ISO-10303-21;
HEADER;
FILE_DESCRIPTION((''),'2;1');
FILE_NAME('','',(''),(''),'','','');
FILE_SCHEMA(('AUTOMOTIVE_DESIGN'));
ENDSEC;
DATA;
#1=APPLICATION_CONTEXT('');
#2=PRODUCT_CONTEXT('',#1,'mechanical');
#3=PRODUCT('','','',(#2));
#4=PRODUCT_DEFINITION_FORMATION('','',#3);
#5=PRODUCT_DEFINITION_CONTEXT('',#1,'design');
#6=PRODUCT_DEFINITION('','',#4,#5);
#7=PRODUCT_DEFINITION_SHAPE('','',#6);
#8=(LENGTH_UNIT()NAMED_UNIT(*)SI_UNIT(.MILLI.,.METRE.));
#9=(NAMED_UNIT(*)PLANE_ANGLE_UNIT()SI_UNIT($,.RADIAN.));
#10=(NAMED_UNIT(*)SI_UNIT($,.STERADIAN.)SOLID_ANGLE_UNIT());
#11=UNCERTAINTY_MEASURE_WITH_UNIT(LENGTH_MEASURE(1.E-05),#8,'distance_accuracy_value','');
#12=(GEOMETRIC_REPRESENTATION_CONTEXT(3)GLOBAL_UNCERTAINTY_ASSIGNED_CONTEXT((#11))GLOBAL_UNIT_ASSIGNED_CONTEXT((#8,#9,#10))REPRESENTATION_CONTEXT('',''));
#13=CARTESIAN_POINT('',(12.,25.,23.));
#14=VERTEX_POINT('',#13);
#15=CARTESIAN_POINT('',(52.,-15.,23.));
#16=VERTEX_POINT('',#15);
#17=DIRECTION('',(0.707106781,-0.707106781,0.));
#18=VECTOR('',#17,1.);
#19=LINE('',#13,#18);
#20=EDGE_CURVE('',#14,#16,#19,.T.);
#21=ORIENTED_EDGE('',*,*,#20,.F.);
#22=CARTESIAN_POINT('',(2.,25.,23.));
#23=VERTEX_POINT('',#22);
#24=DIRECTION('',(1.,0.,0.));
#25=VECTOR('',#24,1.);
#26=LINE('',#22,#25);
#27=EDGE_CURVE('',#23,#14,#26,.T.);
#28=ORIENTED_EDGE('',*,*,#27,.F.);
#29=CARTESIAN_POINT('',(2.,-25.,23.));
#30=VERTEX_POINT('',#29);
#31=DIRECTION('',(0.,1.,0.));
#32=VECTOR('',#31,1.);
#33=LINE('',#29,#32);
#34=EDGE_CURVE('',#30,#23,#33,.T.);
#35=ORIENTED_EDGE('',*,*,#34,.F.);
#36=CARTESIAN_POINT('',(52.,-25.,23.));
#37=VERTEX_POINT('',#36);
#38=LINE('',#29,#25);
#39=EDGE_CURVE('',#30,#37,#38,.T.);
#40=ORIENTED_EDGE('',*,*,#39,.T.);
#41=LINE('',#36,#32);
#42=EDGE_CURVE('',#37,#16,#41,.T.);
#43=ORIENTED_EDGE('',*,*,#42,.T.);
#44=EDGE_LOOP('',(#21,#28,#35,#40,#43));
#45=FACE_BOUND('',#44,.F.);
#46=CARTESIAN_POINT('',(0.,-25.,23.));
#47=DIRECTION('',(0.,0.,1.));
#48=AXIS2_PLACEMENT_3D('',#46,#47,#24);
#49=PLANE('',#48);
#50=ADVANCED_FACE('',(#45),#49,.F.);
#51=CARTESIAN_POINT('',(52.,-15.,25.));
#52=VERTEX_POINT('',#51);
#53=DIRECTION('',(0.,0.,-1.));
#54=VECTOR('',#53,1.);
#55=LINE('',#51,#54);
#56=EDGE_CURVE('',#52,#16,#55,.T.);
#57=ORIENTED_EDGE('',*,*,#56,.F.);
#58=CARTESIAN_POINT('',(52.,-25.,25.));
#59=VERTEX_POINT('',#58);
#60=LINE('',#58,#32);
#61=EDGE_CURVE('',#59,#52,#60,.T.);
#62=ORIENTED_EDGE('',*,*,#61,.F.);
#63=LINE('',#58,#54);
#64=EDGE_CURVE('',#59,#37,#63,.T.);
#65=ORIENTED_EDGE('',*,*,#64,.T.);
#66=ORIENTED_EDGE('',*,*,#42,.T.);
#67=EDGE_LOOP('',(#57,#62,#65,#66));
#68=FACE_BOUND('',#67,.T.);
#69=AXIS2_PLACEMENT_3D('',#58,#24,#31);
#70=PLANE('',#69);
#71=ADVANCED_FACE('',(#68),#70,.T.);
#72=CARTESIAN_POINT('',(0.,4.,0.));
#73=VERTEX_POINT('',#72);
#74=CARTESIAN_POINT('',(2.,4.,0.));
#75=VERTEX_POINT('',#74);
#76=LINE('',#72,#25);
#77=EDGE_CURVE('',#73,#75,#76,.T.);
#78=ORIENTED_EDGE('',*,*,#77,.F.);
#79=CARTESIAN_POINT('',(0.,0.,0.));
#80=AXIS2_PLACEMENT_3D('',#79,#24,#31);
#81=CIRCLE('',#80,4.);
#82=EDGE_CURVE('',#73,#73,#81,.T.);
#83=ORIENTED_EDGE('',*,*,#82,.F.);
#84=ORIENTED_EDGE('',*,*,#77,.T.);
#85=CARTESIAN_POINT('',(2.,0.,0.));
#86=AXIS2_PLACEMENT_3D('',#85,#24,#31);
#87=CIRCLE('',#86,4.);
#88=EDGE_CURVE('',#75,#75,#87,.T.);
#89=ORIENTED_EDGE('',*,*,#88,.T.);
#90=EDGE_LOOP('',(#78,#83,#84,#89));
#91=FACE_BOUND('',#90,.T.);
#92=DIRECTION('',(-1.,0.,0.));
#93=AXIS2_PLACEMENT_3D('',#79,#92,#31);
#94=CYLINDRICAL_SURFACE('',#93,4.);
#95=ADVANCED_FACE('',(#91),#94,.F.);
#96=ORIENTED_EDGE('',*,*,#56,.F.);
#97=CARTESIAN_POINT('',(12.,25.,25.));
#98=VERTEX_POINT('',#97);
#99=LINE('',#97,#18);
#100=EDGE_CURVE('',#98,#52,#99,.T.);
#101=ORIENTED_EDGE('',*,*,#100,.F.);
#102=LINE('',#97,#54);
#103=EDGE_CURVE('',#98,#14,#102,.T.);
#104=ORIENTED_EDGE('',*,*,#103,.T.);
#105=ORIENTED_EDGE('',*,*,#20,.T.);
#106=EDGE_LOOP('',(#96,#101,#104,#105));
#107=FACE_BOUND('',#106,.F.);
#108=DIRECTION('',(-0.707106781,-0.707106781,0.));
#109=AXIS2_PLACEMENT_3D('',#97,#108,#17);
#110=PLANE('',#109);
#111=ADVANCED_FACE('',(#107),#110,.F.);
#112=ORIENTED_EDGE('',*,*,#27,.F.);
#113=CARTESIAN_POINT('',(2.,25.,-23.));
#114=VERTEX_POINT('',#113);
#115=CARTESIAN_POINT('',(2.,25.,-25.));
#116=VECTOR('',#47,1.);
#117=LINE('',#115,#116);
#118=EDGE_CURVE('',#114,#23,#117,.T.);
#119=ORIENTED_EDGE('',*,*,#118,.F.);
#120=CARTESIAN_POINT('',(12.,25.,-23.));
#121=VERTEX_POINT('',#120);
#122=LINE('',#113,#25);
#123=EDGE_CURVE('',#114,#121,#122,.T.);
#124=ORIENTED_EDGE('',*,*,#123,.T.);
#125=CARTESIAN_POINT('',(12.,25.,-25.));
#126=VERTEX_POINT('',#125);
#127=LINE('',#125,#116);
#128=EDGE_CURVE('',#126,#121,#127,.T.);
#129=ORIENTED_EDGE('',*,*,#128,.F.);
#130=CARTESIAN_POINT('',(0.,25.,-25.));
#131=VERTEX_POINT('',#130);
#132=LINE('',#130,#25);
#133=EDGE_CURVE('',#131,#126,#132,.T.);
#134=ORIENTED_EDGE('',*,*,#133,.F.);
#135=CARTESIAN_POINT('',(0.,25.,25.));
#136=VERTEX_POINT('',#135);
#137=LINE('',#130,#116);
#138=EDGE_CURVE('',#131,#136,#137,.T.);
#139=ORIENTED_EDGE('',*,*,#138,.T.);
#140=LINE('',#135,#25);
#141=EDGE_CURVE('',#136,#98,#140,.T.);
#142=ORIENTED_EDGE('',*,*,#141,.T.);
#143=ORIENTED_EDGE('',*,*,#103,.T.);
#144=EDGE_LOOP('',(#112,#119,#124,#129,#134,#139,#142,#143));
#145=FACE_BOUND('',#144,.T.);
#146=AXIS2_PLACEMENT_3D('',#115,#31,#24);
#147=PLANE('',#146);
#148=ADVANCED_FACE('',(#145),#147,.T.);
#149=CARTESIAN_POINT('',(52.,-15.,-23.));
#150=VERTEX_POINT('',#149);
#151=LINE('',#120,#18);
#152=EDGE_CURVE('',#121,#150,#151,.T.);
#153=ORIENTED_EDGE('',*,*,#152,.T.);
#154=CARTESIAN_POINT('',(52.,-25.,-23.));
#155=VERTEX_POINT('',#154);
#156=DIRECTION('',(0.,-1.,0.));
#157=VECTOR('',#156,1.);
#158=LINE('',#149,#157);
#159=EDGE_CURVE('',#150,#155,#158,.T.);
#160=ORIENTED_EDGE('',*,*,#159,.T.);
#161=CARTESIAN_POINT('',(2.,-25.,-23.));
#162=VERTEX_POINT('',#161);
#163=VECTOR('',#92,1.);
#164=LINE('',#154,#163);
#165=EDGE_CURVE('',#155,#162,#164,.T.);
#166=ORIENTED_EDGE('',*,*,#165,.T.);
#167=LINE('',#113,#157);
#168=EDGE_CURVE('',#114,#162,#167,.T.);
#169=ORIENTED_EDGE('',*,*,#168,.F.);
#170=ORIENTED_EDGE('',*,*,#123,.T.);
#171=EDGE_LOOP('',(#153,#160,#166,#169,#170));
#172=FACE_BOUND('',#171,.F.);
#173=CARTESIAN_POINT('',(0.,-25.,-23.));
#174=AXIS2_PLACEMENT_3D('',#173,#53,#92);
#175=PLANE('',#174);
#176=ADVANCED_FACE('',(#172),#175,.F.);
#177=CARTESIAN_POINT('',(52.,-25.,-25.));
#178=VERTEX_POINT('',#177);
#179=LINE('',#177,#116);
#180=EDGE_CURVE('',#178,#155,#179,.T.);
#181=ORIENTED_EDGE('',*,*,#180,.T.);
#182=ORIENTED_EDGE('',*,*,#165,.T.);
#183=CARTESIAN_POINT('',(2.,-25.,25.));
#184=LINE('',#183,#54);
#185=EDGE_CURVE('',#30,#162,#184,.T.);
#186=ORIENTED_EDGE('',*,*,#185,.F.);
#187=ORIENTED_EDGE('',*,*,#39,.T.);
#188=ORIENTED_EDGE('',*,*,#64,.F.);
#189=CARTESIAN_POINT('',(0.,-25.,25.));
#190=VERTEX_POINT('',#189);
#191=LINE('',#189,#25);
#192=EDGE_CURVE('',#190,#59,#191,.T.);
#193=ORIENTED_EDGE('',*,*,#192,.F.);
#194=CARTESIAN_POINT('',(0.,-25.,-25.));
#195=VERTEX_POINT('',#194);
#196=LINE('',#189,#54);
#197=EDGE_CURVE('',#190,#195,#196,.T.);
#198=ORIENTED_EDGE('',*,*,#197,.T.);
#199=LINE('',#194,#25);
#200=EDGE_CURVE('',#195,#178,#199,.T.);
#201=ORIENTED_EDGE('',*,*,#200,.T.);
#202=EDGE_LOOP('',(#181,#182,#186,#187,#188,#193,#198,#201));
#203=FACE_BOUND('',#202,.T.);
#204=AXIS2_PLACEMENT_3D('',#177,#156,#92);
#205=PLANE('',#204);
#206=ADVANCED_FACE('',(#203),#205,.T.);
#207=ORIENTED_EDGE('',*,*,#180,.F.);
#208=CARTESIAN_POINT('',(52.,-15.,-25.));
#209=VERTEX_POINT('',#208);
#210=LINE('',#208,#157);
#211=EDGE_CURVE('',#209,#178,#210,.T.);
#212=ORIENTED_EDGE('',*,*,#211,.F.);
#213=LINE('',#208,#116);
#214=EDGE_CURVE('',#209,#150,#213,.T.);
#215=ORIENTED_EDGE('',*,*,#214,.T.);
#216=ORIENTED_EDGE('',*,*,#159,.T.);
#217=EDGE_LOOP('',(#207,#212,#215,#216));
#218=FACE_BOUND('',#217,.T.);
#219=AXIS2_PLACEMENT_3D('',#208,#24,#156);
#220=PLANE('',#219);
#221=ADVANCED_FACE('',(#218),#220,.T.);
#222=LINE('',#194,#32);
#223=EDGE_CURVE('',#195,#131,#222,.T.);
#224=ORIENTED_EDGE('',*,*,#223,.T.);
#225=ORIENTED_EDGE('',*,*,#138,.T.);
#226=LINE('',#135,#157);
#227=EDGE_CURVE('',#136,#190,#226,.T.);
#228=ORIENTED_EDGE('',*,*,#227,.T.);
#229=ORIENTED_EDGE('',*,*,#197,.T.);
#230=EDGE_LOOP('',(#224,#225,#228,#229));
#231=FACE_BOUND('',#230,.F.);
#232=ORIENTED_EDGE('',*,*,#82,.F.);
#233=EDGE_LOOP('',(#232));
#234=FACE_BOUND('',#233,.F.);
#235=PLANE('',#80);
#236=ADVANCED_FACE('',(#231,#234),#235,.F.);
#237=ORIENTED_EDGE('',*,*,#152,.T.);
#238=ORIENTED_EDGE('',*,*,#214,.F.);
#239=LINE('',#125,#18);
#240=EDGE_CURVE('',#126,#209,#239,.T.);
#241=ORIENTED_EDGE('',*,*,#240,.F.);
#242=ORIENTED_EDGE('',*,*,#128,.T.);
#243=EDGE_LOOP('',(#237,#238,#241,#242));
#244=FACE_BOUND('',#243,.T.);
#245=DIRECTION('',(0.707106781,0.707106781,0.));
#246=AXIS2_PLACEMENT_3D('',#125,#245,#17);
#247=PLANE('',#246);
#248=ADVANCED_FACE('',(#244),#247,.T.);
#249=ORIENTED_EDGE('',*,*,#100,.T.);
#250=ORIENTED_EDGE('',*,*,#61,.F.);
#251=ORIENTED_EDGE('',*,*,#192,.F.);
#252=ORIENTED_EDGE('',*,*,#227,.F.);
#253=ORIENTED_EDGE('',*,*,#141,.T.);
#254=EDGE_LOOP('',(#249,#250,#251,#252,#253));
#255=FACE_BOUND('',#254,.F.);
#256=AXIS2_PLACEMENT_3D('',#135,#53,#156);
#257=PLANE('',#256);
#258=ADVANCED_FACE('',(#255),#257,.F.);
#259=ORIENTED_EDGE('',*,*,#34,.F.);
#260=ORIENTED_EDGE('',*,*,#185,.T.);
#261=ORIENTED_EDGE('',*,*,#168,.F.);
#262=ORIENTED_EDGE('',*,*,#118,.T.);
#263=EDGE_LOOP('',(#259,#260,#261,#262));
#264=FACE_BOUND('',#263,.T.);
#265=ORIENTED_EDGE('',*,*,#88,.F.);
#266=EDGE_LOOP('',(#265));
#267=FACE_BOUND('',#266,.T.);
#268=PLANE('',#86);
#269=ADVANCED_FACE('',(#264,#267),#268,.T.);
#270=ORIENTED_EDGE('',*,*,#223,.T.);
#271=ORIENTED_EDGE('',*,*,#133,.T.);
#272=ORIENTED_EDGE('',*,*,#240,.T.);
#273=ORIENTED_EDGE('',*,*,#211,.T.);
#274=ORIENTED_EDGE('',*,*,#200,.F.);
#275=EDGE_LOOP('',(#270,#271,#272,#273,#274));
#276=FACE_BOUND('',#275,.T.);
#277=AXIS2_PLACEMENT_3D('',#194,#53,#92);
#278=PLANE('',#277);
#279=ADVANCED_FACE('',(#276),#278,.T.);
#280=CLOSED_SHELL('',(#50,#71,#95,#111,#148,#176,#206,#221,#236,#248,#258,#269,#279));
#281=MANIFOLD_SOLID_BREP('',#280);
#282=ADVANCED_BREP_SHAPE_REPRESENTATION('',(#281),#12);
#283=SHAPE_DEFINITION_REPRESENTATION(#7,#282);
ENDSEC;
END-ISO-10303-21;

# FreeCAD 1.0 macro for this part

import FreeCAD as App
import Part
import Sketcher
from FreeCAD import Vector
Q = App.Units.Quantity

doc = App.newDocument("Part")
body = doc.addObject("PartDesign::Body", "Body")

# Sketch on YZ plane
sketch1 = body.newObject("Sketcher::SketchObject", "Sketch")
sketch1.AttachmentSupport = (doc.getObject("YZ_Plane"), [""])
sketch1.MapMode = "FlatFace"
sketch1.addGeometry(Part.LineSegment(Vector(25, -25, 0), Vector(25, 25, 0)), False)
sketch1.addGeometry(Part.LineSegment(Vector(25, 25, 0), Vector(-25, 25, 0)), False)
sketch1.addGeometry(Part.LineSegment(Vector(-25, 25, 0), Vector(-25, -25, 0)), False)
sketch1.addGeometry(Part.LineSegment(Vector(-25, -25, 0), Vector(25, -25, 0)), False)
sketch1.addGeometry(Part.Circle(Vector(0, 0, 0), Vector(0, 0, 1), 4), False)
sketch1.addConstraint(Sketcher.Constraint("Coincident", 0, 2, 1, 1))
sketch1.addConstraint(Sketcher.Constraint("Coincident", 1, 2, 2, 1))
sketch1.addConstraint(Sketcher.Constraint("Coincident", 2, 2, 3, 1))
sketch1.addConstraint(Sketcher.Constraint("Coincident", 3, 2, 0, 1))
sketch1.addConstraint(Sketcher.Constraint("Vertical", 0))
sketch1.addConstraint(Sketcher.Constraint("Horizontal", 1))
sketch1.addConstraint(Sketcher.Constraint("Vertical", 2))
sketch1.addConstraint(Sketcher.Constraint("Horizontal", 3))
sketch1.addConstraint(Sketcher.Constraint("Coincident", 4, 3, -1, 1))
sketch1.addConstraint(Sketcher.Constraint("Symmetric", 0, 2, 2, 2, -1, 1))
sketch1.addConstraint(Sketcher.Constraint("Equal", 3, 0))
sketch1.addConstraint(Sketcher.Constraint("Diameter", 4, Q("8 mm")))
sketch1.addConstraint(Sketcher.Constraint("DistanceX", 1, 2, 1, 1, Q("50 mm")))
pad1 = body.newObject("PartDesign::Pad", "Pad")
pad1.Profile = sketch1
pad1.Length = 2

# Sketch on XY plane
sketch2 = body.newObject("Sketcher::SketchObject", "Sketch001")
sketch2.AttachmentSupport = (doc.getObject("XY_Plane"), [""])
sketch2.MapMode = "FlatFace"
sketch2.AttachmentOffset = App.Placement(Vector(0, 0, 25), App.Rotation())
sketch2.addGeometry(Part.LineSegment(Vector(2, 25, 0), Vector(2, -25, 0)), False)
sketch2.addGeometry(Part.LineSegment(Vector(2, -25, 0), Vector(52, -25, 0)), False)
sketch2.addGeometry(Part.LineSegment(Vector(52, -25, 0), Vector(52, -15, 0)), False)
sketch2.addGeometry(Part.LineSegment(Vector(52, -15, 0), Vector(12, 25, 0)), False)
sketch2.addGeometry(Part.LineSegment(Vector(12, 25, 0), Vector(2, 25, 0)), False)
sketch2.addConstraint(Sketcher.Constraint("Coincident", 0, 2, 1, 1))
sketch2.addConstraint(Sketcher.Constraint("Coincident", 1, 2, 2, 1))
sketch2.addConstraint(Sketcher.Constraint("Coincident", 2, 2, 3, 1))
sketch2.addConstraint(Sketcher.Constraint("Coincident", 3, 2, 4, 1))
sketch2.addConstraint(Sketcher.Constraint("Coincident", 4, 2, 0, 1))
sketch2.addConstraint(Sketcher.Constraint("Vertical", 0))
sketch2.addConstraint(Sketcher.Constraint("Horizontal", 1))
sketch2.addConstraint(Sketcher.Constraint("Vertical", 2))
sketch2.addConstraint(Sketcher.Constraint("Horizontal", 4))
sketch2.addConstraint(Sketcher.Constraint("Equal", 1, 0))
sketch2.addConstraint(Sketcher.Constraint("Equal", 4, 2))
sketch2.addConstraint(Sketcher.Constraint("DistanceX", 1, 1, 1, 2, Q("50 mm")))
sketch2.addConstraint(Sketcher.Constraint("DistanceX", 4, 2, 4, 1, Q("10 mm")))
sketch2.addConstraint(Sketcher.Constraint("DistanceX", -1, 1, 0, 2, Q("2 mm")))
sketch2.addConstraint(Sketcher.Constraint("DistanceY", 0, 2, -1, 1, Q("25 mm")))
pad2 = body.newObject("PartDesign::Pad", "Pad001")
pad2.Profile = sketch2
pad2.Length = 2
pad2.Reversed = True

# Sketch on XY plane
sketch3 = body.newObject("Sketcher::SketchObject", "Sketch002")
sketch3.AttachmentSupport = (doc.getObject("XY_Plane"), [""])
sketch3.MapMode = "FlatFace"
sketch3.AttachmentOffset = App.Placement(Vector(0, 0, -25), App.Rotation())
sketch3.addGeometry(Part.LineSegment(Vector(52, -15, 0), Vector(52, -25, 0)), False)
sketch3.addGeometry(Part.LineSegment(Vector(52, -25, 0), Vector(2, -25, 0)), False)
sketch3.addGeometry(Part.LineSegment(Vector(2, -25, 0), Vector(2, 25, 0)), False)
sketch3.addGeometry(Part.LineSegment(Vector(2, 25, 0), Vector(12, 25, 0)), False)
sketch3.addGeometry(Part.LineSegment(Vector(12, 25, 0), Vector(52, -15, 0)), False)
sketch3.addConstraint(Sketcher.Constraint("Coincident", 0, 2, 1, 1))
sketch3.addConstraint(Sketcher.Constraint("Coincident", 1, 2, 2, 1))
sketch3.addConstraint(Sketcher.Constraint("Coincident", 2, 2, 3, 1))
sketch3.addConstraint(Sketcher.Constraint("Coincident", 3, 2, 4, 1))
sketch3.addConstraint(Sketcher.Constraint("Coincident", 4, 2, 0, 1))
sketch3.addConstraint(Sketcher.Constraint("Vertical", 0))
sketch3.addConstraint(Sketcher.Constraint("Horizontal", 1))
sketch3.addConstraint(Sketcher.Constraint("Vertical", 2))
sketch3.addConstraint(Sketcher.Constraint("Horizontal", 3))
sketch3.addConstraint(Sketcher.Constraint("Equal", 3, 0))
sketch3.addConstraint(Sketcher.Constraint("Equal", 1, 2))
sketch3.addConstraint(Sketcher.Constraint("DistanceX", 1, 2, 1, 1, Q("50 mm")))
sketch3.addConstraint(Sketcher.Constraint("DistanceX", 3, 1, 3, 2, Q("10 mm")))
sketch3.addConstraint(Sketcher.Constraint("DistanceX", -1, 1, 0, 2, Q("52 mm")))
sketch3.addConstraint(Sketcher.Constraint("DistanceY", 0, 2, -1, 1, Q("25 mm")))
pad3 = body.newObject("PartDesign::Pad", "Pad002")
pad3.Profile = sketch3
pad3.Length = 2

doc.recompute()
